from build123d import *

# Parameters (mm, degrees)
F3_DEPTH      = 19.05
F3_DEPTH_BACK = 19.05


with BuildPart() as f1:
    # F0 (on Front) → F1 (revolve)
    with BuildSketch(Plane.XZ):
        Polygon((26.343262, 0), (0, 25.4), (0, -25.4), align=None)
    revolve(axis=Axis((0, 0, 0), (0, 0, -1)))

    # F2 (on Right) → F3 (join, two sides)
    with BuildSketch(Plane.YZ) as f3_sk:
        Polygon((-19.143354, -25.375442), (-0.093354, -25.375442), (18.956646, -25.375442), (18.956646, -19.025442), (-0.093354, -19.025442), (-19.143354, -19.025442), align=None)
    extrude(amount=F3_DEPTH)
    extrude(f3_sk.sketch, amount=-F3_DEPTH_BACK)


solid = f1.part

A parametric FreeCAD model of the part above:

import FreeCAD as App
import Part
import Sketcher

V = App.Vector
Q = App.Units.Quantity

doc = App.newDocument("Part")
params = doc.addObject("Spreadsheet::Sheet", "Params")
for row, (alias, value) in enumerate([
    ("sketch1_height", "2 in"),
    ("revolution_angle", "360 deg"),
    ("sketch2_width", "1.5 in"),
    ("sketch2_height", "0.25 in"),
    ("pad1_length", "0.75 in"),
    ("pad1_length2", "0.75 in"),
], start=1):
    params.set(f"A{row}", alias)
    params.set(f"B{row}", "=" + value)
    params.setAlias(f"B{row}", alias)

body = doc.addObject("PartDesign::Body", "Body")

sketch1 = doc.addObject("Sketcher::SketchObject", "Sketch")
body.addObject(sketch1)
sketch1.AttachmentSupport = (doc.XZ_Plane, [""])
sketch1.MapMode = "FlatFace"
sketch1.addGeometry(Part.LineSegment(V(26, 0, 0), V(0, 25, 0)), False)
sketch1.addGeometry(Part.LineSegment(V(0, 25, 0), V(0, -25, 0)), False)
sketch1.addGeometry(Part.LineSegment(V(0, -25, 0), V(26, 0, 0)), False)
sketch1.addConstraint(Sketcher.Constraint("Coincident", 0, 2, 1, 1))
sketch1.addConstraint(Sketcher.Constraint("Coincident", 1, 2, 2, 1))
sketch1.addConstraint(Sketcher.Constraint("Coincident", 2, 2, 0, 1))
sketch1.addConstraint(Sketcher.Constraint("Vertical", 1))
sketch1.addConstraint(Sketcher.Constraint("Symmetric", 0, 2, 1, 2, -1, 1))
sketch1.addConstraint(Sketcher.Constraint("PointOnObject", 2, 2, -1))
sketch1.addConstraint(Sketcher.Constraint("DistanceY", 1, 2, 1, 1, Q("2 in")))
sketch1.addConstraint(Sketcher.Constraint("Distance", 0, 36.59409))
sketch1.setExpression("Constraints[6]", "Params.sketch1_height")
revolution = doc.addObject("PartDesign::Revolution", "Revolution")
body.addObject(revolution)
revolution.Profile = sketch1
revolution.ReferenceAxis = (sketch1, ["V_Axis"])
revolution.setExpression("Angle", "Params.revolution_angle")

sketch2 = doc.addObject("Sketcher::SketchObject", "Sketch001")
body.addObject(sketch2)
sketch2.AttachmentSupport = (doc.YZ_Plane, [""])
sketch2.MapMode = "FlatFace"
sketch2.addGeometry(Part.LineSegment(V(-19, -25, 0), V(19, -25, 0)), False)
sketch2.addGeometry(Part.LineSegment(V(19, -25, 0), V(19, -19, 0)), False)
sketch2.addGeometry(Part.LineSegment(V(19, -19, 0), V(-19, -19, 0)), False)
sketch2.addGeometry(Part.LineSegment(V(-19, -19, 0), V(-19, -25, 0)), False)
sketch2.addConstraint(Sketcher.Constraint("Coincident", 0, 2, 1, 1))
sketch2.addConstraint(Sketcher.Constraint("Coincident", 1, 2, 2, 1))
sketch2.addConstraint(Sketcher.Constraint("Coincident", 2, 2, 3, 1))
sketch2.addConstraint(Sketcher.Constraint("Coincident", 3, 2, 0, 1))
sketch2.addConstraint(Sketcher.Constraint("Horizontal", 0))
sketch2.addConstraint(Sketcher.Constraint("Vertical", 1))
sketch2.addConstraint(Sketcher.Constraint("Horizontal", 2))
sketch2.addConstraint(Sketcher.Constraint("Vertical", 3))
sketch2.addConstraint(Sketcher.Constraint("DistanceX", 0, 1, 0, 2, Q("1.5 in")))
sketch2.addConstraint(Sketcher.Constraint("DistanceY", 1, 1, 1, 2, Q("0.25 in")))
sketch2.addConstraint(Sketcher.Constraint("DistanceY", 0, 2, -1, 1, 25.375442))
sketch2.addConstraint(Sketcher.Constraint("DistanceX", -1, 1, 0, 2, 18.956646))
sketch2.setExpression("Constraints[8]", "Params.sketch2_width")
sketch2.setExpression("Constraints[9]", "Params.sketch2_height")
pad1 = doc.addObject("PartDesign::Pad", "Pad")
body.addObject(pad1)
pad1.Profile = sketch2
pad1.Type = "TwoLengths"
pad1.setExpression("Length", "Params.pad1_length")
pad1.setExpression("Length2", "Params.pad1_length2")

doc.recompute()
